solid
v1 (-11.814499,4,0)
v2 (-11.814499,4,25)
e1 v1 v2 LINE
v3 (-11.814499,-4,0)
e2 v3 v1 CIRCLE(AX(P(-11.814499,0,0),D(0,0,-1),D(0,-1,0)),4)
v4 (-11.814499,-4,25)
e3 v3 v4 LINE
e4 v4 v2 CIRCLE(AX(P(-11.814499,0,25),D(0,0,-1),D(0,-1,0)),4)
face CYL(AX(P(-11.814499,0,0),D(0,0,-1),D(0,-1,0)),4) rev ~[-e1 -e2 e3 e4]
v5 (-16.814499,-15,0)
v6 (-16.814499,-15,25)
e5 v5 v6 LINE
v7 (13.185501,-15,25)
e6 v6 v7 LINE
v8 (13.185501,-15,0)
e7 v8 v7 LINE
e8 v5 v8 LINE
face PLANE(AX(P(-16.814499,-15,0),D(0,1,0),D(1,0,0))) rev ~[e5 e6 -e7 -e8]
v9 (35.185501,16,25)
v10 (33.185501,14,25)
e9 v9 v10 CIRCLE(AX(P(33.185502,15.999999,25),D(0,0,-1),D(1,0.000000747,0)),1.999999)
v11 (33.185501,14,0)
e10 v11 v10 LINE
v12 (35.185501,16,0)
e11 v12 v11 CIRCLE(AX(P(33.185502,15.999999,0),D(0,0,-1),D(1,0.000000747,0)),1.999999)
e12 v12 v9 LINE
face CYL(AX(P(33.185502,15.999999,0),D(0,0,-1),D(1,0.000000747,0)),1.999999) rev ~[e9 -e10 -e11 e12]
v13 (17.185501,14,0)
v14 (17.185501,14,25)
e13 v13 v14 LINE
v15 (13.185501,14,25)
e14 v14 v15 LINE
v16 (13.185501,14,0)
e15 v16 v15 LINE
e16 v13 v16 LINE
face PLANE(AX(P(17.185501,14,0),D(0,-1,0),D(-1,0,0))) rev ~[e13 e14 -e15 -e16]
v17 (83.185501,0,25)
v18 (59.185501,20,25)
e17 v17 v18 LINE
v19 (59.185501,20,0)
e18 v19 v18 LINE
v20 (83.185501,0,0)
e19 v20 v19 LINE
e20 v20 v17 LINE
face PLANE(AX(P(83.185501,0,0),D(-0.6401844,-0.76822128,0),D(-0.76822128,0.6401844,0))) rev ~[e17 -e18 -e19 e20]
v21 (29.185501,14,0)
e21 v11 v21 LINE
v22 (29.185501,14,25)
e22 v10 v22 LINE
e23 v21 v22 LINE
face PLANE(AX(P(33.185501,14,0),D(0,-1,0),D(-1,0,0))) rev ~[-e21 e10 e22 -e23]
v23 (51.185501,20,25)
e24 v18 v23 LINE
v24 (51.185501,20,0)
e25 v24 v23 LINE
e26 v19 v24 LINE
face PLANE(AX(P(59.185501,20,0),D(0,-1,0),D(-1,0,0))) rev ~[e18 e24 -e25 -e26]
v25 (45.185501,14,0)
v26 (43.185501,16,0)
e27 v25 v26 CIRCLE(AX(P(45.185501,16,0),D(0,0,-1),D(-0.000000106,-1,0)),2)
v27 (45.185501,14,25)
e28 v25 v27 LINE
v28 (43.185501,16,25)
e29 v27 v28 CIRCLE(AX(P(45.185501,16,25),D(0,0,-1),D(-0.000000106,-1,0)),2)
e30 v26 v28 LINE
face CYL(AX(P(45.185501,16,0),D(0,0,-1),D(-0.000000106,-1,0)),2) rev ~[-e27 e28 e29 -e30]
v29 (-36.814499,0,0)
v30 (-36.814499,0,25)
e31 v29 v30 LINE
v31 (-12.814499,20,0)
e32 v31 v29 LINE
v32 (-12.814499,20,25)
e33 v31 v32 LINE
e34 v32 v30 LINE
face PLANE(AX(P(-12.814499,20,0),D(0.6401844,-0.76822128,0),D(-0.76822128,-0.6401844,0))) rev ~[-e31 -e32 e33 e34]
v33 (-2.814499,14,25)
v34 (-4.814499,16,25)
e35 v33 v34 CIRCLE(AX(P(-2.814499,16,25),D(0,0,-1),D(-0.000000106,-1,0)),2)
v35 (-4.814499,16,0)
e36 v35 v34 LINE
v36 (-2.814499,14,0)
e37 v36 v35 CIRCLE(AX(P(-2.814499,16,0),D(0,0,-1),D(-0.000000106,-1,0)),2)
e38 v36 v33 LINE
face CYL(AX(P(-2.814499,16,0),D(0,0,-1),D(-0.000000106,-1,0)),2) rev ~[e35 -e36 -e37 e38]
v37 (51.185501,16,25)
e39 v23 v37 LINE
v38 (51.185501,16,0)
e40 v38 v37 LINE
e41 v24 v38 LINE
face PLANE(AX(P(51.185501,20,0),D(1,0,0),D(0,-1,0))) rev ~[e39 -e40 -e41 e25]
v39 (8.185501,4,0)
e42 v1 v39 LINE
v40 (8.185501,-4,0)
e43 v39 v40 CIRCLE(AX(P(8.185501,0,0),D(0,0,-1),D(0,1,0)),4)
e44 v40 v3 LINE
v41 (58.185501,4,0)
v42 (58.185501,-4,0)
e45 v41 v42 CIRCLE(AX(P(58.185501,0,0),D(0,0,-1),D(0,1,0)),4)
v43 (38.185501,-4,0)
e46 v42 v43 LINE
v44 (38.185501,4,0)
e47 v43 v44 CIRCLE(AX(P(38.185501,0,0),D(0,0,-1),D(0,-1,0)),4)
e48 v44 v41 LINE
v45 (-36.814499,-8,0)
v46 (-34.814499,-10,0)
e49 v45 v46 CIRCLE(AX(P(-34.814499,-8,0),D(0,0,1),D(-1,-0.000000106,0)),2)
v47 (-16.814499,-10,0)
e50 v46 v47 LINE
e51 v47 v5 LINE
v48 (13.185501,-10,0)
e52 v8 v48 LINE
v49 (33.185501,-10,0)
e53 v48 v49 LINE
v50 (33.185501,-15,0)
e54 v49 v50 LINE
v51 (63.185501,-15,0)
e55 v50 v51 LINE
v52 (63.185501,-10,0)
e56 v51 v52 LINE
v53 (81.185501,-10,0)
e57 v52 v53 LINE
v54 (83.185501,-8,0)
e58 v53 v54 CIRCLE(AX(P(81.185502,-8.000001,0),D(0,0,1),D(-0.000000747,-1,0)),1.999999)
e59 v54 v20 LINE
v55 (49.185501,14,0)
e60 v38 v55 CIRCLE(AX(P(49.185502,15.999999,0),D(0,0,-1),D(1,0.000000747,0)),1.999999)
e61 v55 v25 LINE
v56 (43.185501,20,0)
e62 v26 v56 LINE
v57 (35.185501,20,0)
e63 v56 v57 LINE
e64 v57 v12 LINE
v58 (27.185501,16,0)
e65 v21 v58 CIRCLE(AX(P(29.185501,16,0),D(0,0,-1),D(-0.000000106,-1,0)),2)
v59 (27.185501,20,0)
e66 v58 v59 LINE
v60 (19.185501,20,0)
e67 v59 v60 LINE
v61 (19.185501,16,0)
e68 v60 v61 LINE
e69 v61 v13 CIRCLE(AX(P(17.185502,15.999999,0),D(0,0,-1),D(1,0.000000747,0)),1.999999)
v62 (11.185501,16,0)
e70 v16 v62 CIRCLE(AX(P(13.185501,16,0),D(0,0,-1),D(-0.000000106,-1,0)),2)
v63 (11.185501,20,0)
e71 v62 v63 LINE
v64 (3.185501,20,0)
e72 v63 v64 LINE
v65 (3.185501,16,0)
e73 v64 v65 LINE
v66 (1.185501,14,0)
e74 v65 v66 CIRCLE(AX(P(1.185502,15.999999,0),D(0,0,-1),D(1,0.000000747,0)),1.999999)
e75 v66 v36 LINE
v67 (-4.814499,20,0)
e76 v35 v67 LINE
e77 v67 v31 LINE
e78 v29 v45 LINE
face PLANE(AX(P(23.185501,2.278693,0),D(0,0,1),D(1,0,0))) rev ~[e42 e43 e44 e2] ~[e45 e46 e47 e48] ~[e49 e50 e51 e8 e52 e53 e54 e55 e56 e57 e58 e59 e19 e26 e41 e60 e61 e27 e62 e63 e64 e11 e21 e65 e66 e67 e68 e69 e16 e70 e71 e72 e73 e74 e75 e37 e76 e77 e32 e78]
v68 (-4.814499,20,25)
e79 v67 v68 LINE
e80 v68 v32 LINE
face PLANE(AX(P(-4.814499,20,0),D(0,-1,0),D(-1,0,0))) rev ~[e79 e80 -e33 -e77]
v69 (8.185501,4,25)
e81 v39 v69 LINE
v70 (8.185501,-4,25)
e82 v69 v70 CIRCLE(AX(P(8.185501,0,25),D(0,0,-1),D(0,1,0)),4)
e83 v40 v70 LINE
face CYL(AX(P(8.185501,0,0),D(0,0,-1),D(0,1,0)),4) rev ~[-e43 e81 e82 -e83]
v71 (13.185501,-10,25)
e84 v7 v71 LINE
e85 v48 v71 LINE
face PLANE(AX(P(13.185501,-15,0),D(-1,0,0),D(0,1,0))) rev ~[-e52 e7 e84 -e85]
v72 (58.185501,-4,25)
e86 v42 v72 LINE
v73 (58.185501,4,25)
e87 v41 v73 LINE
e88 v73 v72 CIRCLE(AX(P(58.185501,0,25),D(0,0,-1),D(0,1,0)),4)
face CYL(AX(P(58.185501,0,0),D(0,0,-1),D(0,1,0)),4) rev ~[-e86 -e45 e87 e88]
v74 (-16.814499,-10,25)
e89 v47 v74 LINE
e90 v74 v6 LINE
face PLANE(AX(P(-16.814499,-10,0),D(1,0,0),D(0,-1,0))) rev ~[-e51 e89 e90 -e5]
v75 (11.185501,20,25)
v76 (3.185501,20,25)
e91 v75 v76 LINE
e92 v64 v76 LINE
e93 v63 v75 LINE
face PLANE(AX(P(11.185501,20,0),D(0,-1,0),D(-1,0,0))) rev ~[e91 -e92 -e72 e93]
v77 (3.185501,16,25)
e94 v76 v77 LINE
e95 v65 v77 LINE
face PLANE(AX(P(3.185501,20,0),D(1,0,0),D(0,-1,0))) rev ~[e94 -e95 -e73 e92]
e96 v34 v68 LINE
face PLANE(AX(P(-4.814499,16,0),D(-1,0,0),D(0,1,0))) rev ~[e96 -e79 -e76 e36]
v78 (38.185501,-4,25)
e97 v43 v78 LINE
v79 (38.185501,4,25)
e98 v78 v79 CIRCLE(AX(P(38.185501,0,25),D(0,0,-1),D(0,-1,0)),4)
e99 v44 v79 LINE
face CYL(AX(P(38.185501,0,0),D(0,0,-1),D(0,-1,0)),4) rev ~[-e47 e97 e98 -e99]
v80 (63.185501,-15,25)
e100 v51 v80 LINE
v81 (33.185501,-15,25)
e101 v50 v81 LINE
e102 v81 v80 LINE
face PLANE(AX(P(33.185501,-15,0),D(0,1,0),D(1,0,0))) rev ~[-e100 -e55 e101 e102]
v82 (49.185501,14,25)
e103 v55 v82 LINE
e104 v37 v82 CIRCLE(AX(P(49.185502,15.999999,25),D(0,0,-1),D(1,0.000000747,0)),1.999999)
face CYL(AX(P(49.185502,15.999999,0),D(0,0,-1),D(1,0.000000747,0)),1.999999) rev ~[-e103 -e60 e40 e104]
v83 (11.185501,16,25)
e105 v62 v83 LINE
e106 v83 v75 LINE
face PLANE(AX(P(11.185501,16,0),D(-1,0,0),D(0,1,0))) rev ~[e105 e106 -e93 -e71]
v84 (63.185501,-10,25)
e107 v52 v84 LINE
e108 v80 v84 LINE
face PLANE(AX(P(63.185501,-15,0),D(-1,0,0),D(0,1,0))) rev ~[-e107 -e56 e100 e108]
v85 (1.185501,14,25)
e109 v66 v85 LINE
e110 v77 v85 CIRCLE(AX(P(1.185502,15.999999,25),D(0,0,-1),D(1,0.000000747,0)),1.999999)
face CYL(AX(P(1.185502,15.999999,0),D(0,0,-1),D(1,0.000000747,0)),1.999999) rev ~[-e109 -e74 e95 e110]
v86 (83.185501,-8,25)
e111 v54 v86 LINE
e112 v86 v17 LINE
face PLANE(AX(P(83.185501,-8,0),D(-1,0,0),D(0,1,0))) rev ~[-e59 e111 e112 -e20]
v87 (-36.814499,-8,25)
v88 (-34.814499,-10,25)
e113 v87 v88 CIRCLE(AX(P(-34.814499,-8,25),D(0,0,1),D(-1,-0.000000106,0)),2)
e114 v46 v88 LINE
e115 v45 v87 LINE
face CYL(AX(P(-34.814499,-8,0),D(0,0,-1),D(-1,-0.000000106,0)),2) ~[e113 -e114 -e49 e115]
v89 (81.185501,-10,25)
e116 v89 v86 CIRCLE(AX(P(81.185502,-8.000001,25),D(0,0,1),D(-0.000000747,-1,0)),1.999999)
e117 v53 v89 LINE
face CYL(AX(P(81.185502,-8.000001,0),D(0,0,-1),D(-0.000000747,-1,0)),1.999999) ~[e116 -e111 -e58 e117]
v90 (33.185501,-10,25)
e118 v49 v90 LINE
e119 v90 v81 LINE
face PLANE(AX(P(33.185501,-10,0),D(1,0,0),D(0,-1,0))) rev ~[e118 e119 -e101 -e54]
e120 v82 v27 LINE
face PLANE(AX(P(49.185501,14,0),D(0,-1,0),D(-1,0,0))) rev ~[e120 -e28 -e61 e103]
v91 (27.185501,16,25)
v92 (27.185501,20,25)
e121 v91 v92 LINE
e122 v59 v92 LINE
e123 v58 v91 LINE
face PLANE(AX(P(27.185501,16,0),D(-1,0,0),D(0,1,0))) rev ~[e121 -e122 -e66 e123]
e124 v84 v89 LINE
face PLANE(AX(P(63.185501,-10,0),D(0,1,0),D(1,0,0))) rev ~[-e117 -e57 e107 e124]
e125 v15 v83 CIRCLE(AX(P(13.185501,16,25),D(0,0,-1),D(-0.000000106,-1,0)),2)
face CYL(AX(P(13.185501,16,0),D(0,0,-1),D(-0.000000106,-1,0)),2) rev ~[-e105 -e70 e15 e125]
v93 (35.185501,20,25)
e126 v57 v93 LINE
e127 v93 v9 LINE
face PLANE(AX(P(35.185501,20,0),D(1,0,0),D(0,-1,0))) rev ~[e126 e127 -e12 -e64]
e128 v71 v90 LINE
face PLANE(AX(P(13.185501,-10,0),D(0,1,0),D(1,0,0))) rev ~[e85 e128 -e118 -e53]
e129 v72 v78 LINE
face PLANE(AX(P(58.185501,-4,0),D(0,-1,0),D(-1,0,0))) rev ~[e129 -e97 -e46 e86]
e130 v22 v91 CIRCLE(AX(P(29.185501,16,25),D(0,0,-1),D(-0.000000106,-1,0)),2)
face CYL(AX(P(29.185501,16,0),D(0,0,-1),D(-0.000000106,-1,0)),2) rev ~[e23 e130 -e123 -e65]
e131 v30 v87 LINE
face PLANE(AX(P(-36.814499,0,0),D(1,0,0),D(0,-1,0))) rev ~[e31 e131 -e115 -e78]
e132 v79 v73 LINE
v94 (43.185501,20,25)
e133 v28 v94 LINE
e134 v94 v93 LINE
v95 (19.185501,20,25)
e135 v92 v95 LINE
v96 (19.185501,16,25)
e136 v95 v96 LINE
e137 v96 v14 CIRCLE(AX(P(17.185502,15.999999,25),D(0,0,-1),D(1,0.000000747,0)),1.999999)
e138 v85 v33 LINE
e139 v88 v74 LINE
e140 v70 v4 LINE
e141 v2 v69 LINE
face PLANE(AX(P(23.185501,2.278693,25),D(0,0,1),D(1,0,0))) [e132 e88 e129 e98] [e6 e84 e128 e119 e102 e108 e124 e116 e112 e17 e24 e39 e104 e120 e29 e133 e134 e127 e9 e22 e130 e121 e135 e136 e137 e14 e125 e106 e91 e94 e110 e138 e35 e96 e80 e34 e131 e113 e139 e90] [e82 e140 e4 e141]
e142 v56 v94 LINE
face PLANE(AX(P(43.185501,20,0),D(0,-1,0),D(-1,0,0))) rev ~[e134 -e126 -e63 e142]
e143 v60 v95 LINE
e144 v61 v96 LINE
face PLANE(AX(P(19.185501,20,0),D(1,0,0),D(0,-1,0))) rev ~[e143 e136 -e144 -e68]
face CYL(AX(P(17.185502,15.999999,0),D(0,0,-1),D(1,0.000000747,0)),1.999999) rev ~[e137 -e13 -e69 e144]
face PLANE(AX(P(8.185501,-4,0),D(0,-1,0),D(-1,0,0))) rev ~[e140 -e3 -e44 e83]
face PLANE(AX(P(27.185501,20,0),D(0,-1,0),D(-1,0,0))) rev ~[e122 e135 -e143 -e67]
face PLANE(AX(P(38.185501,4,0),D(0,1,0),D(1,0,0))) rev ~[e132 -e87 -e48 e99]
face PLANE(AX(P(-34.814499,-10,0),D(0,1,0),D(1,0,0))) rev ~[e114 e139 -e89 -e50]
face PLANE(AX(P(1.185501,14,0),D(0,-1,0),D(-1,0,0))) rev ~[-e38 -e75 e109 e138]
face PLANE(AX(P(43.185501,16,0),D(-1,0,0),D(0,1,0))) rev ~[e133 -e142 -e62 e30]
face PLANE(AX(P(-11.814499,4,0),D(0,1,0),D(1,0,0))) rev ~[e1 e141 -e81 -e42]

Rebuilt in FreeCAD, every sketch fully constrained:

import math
import FreeCAD as App
import Part
import Sketcher
from FreeCAD import Vector

doc = App.newDocument("Part")
body = doc.addObject("PartDesign::Body", "Body")

# Sketch on XY plane
sketch1 = body.newObject("Sketcher::SketchObject", "Sketch")
sketch1.AttachmentSupport = (doc.getObject("XY_Plane"), [""])
sketch1.MapMode = "FlatFace"
sketch1.addGeometry([
    Part.ArcOfCircle(Part.Circle(Vector(-34.8, -8, 0), Vector(0, 0, 1), 2), math.radians(-180), math.radians(-90)),  # 0
    Part.LineSegment(Vector(-34.8, -10, 0), Vector(-16.8, -10, 0)),  # 1
    Part.LineSegment(Vector(-16.8, -10, 0), Vector(-16.8, -15, 0)),  # 2
    Part.LineSegment(Vector(-16.8, -15, 0), Vector(13.2, -15, 0)),  # 3
    Part.LineSegment(Vector(13.2, -15, 0), Vector(13.2, -10, 0)),  # 4
    Part.LineSegment(Vector(13.2, -10, 0), Vector(33.2, -10, 0)),  # 5
    Part.LineSegment(Vector(33.2, -10, 0), Vector(33.2, -15, 0)),  # 6
    Part.LineSegment(Vector(33.2, -15, 0), Vector(63.2, -15, 0)),  # 7
    Part.LineSegment(Vector(63.2, -15, 0), Vector(63.2, -10, 0)),  # 8
    Part.LineSegment(Vector(63.2, -10, 0), Vector(81.2, -10, 0)),  # 9
    Part.ArcOfCircle(Part.Circle(Vector(81.2, -8, 0), Vector(0, 0, 1), 2), math.radians(-90), math.radians(0)),  # 10
    Part.LineSegment(Vector(83.2, -8, 0), Vector(83.2, 0, 0)),  # 11
    Part.LineSegment(Vector(83.2, 0, 0), Vector(59.2, 20, 0)),  # 12
    Part.LineSegment(Vector(59.2, 20, 0), Vector(51.2, 20, 0)),  # 13
    Part.LineSegment(Vector(51.2, 20, 0), Vector(51.2, 16, 0)),  # 14
    Part.ArcOfCircle(Part.Circle(Vector(49.2, 16, 0), Vector(0, 0, 1), 2), math.radians(-90), math.radians(0)),  # 15
    Part.LineSegment(Vector(49.2, 14, 0), Vector(45.2, 14, 0)),  # 16
    Part.ArcOfCircle(Part.Circle(Vector(45.2, 16, 0), Vector(0, 0, 1), 2), math.radians(-180), math.radians(-90)),  # 17
    Part.LineSegment(Vector(43.2, 16, 0), Vector(43.2, 20, 0)),  # 18
    Part.LineSegment(Vector(43.2, 20, 0), Vector(35.2, 20, 0)),  # 19
    Part.LineSegment(Vector(35.2, 20, 0), Vector(35.2, 16, 0)),  # 20
    Part.ArcOfCircle(Part.Circle(Vector(33.2, 16, 0), Vector(0, 0, 1), 2), math.radians(-90), math.radians(0)),  # 21
    Part.LineSegment(Vector(33.2, 14, 0), Vector(29.2, 14, 0)),  # 22
    Part.ArcOfCircle(Part.Circle(Vector(29.2, 16, 0), Vector(0, 0, 1), 2), math.radians(-180), math.radians(-90)),  # 23
    Part.LineSegment(Vector(27.2, 16, 0), Vector(27.2, 20, 0)),  # 24
    Part.LineSegment(Vector(27.2, 20, 0), Vector(19.2, 20, 0)),  # 25
    Part.LineSegment(Vector(19.2, 20, 0), Vector(19.2, 16, 0)),  # 26
    Part.ArcOfCircle(Part.Circle(Vector(17.2, 16, 0), Vector(0, 0, 1), 2), math.radians(-90), math.radians(0)),  # 27
    Part.LineSegment(Vector(17.2, 14, 0), Vector(13.2, 14, 0)),  # 28
    Part.ArcOfCircle(Part.Circle(Vector(13.2, 16, 0), Vector(0, 0, 1), 2), math.radians(-180), math.radians(-90)),  # 29
    Part.LineSegment(Vector(11.2, 16, 0), Vector(11.2, 20, 0)),  # 30
    Part.LineSegment(Vector(11.2, 20, 0), Vector(3.2, 20, 0)),  # 31
    Part.LineSegment(Vector(3.2, 20, 0), Vector(3.2, 16, 0)),  # 32
    Part.ArcOfCircle(Part.Circle(Vector(1.2, 16, 0), Vector(0, 0, 1), 2), math.radians(-90), math.radians(0)),  # 33
    Part.LineSegment(Vector(1.2, 14, 0), Vector(-2.8, 14, 0)),  # 34
    Part.ArcOfCircle(Part.Circle(Vector(-2.8, 16, 0), Vector(0, 0, 1), 2), math.radians(-180), math.radians(-90)),  # 35
    Part.LineSegment(Vector(-4.8, 16, 0), Vector(-4.8, 20, 0)),  # 36
    Part.LineSegment(Vector(-4.8, 20, 0), Vector(-12.8, 20, 0)),  # 37
    Part.LineSegment(Vector(-12.8, 20, 0), Vector(-36.8, 0, 0)),  # 38
    Part.LineSegment(Vector(-36.8, 0, 0), Vector(-36.8, -8, 0)),  # 39
    Part.LineSegment(Vector(-11.8, 4, 0), Vector(8.2, 4, 0)),  # 40
    Part.ArcOfCircle(Part.Circle(Vector(8.2, 0, 0), Vector(0, 0, 1), 4), math.radians(-90), math.radians(90)),  # 41
    Part.LineSegment(Vector(8.2, -4, 0), Vector(-11.8, -4, 0)),  # 42
    Part.ArcOfCircle(Part.Circle(Vector(-11.8, 0, 0), Vector(0, 0, 1), 4), math.radians(90), math.radians(270)),  # 43
    Part.LineSegment(Vector(38.2, 4, 0), Vector(58.2, 4, 0)),  # 44
    Part.ArcOfCircle(Part.Circle(Vector(58.2, 0, 0), Vector(0, 0, 1), 4), math.radians(-90), math.radians(90)),  # 45
    Part.LineSegment(Vector(58.2, -4, 0), Vector(38.2, -4, 0)),  # 46
    Part.ArcOfCircle(Part.Circle(Vector(38.2, 0, 0), Vector(0, 0, 1), 4), math.radians(90), math.radians(270)),  # 47
], False)
sketch1.addConstraint([
    Sketcher.Constraint("Tangent", 0, 2, 1, 1),
    Sketcher.Constraint("Coincident", 1, 2, 2, 1),
    Sketcher.Constraint("Coincident", 2, 2, 3, 1),
    Sketcher.Constraint("Coincident", 3, 2, 4, 1),
    Sketcher.Constraint("Coincident", 4, 2, 5, 1),
    Sketcher.Constraint("Coincident", 5, 2, 6, 1),
    Sketcher.Constraint("Coincident", 6, 2, 7, 1),
    Sketcher.Constraint("Coincident", 7, 2, 8, 1),
    Sketcher.Constraint("Coincident", 8, 2, 9, 1),
    Sketcher.Constraint("Tangent", 9, 2, 10, 1),
    Sketcher.Constraint("Tangent", 10, 2, 11, 1),
    Sketcher.Constraint("Coincident", 11, 2, 12, 1),
    Sketcher.Constraint("Coincident", 12, 2, 13, 1),
    Sketcher.Constraint("Coincident", 13, 2, 14, 1),
    Sketcher.Constraint("Tangent", 14, 2, 15, 2),
    Sketcher.Constraint("Tangent", 15, 1, 16, 1),
    Sketcher.Constraint("Tangent", 16, 2, 17, 2),
    Sketcher.Constraint("Tangent", 17, 1, 18, 1),
    Sketcher.Constraint("Coincident", 18, 2, 19, 1),
    Sketcher.Constraint("Coincident", 19, 2, 20, 1),
    Sketcher.Constraint("Tangent", 20, 2, 21, 2),
    Sketcher.Constraint("Tangent", 21, 1, 22, 1),
    Sketcher.Constraint("Tangent", 22, 2, 23, 2),
    Sketcher.Constraint("Tangent", 23, 1, 24, 1),
    Sketcher.Constraint("Coincident", 24, 2, 25, 1),
    Sketcher.Constraint("Coincident", 25, 2, 26, 1),
    Sketcher.Constraint("Tangent", 26, 2, 27, 2),
    Sketcher.Constraint("Tangent", 27, 1, 28, 1),
    Sketcher.Constraint("Tangent", 28, 2, 29, 2),
    Sketcher.Constraint("Tangent", 29, 1, 30, 1),
    Sketcher.Constraint("Coincident", 30, 2, 31, 1),
    Sketcher.Constraint("Coincident", 31, 2, 32, 1),
    Sketcher.Constraint("Tangent", 32, 2, 33, 2),
    Sketcher.Constraint("Tangent", 33, 1, 34, 1),
    Sketcher.Constraint("Tangent", 34, 2, 35, 2),
    Sketcher.Constraint("Tangent", 35, 1, 36, 1),
    Sketcher.Constraint("Coincident", 36, 2, 37, 1),
    Sketcher.Constraint("Coincident", 37, 2, 38, 1),
    Sketcher.Constraint("Coincident", 38, 2, 39, 1),
    Sketcher.Constraint("Tangent", 39, 2, 0, 1),
    Sketcher.Constraint("Tangent", 40, 2, 41, 2),
    Sketcher.Constraint("Tangent", 41, 1, 42, 1),
    Sketcher.Constraint("Tangent", 42, 2, 43, 2),
    Sketcher.Constraint("Tangent", 43, 1, 40, 1),
    Sketcher.Constraint("Tangent", 44, 2, 45, 2),
    Sketcher.Constraint("Tangent", 45, 1, 46, 1),
    Sketcher.Constraint("Tangent", 46, 2, 47, 2),
    Sketcher.Constraint("Tangent", 47, 1, 44, 1),
    Sketcher.Constraint("Horizontal", 1),
    Sketcher.Constraint("Vertical", 2),
    Sketcher.Constraint("Horizontal", 3),
    Sketcher.Constraint("Vertical", 4),
    Sketcher.Constraint("Horizontal", 5),
    Sketcher.Constraint("Vertical", 6),
    Sketcher.Constraint("Horizontal", 7),
    Sketcher.Constraint("Vertical", 8),
    Sketcher.Constraint("Horizontal", 9),
    Sketcher.Constraint("Vertical", 11),
    Sketcher.Constraint("Horizontal", 13),
    Sketcher.Constraint("Vertical", 14),
    Sketcher.Constraint("Horizontal", 16),
    Sketcher.Constraint("Vertical", 18),
    Sketcher.Constraint("Horizontal", 19),
    Sketcher.Constraint("Vertical", 20),
    Sketcher.Constraint("Horizontal", 22),
    Sketcher.Constraint("Vertical", 24),
    Sketcher.Constraint("Horizontal", 25),
    Sketcher.Constraint("Vertical", 26),
    Sketcher.Constraint("Horizontal", 28),
    Sketcher.Constraint("Vertical", 30),
    Sketcher.Constraint("Horizontal", 31),
    Sketcher.Constraint("Vertical", 32),
    Sketcher.Constraint("Horizontal", 34),
    Sketcher.Constraint("Vertical", 36),
    Sketcher.Constraint("Horizontal", 37),
    Sketcher.Constraint("Vertical", 39),
    Sketcher.Constraint("Horizontal", 40),
    Sketcher.Constraint("Horizontal", 42),
    Sketcher.Constraint("Horizontal", 44),
    Sketcher.Constraint("Horizontal", 46),
    Sketcher.Constraint("Equal", 0, 10),
    Sketcher.Constraint("Equal", 10, 15),
    Sketcher.Constraint("Equal", 15, 17),
    Sketcher.Constraint("Equal", 17, 21),
    Sketcher.Constraint("Equal", 21, 23),
    Sketcher.Constraint("Equal", 23, 27),
    Sketcher.Constraint("Equal", 27, 29),
    Sketcher.Constraint("Equal", 29, 33),
    Sketcher.Constraint("Equal", 33, 35),
    Sketcher.Constraint("Equal", 43, 45),
    Sketcher.Constraint("PointOnObject", 41, 3, -1),
    Sketcher.Constraint("PointOnObject", 45, 3, -1),
    Sketcher.Constraint("PointOnObject", 11, 2, -1),
    Sketcher.Constraint("PointOnObject", 38, 2, -1),
    Sketcher.Constraint("Horizontal", 0, 3, 10, 3),
    Sketcher.Constraint("Horizontal", 17, 3, 21, 3),
    Sketcher.Constraint("Horizontal", 23, 3, 27, 3),
    Sketcher.Constraint("Horizontal", 29, 3, 33, 3),
    Sketcher.Constraint("Horizontal", 1, 2, 4, 2),
    Sketcher.Constraint("Horizontal", 3, 2, 6, 2),
    Sketcher.Constraint("Horizontal", 13, 2, 18, 2),
    Sketcher.Constraint("Horizontal", 19, 2, 24, 2),
    Sketcher.Constraint("Horizontal", 25, 2, 30, 2),
    Sketcher.Constraint("Horizontal", 31, 2, 36, 2),
    Sketcher.Constraint("Vertical", 29, 3, 3, 2),
    Sketcher.Constraint("Vertical", 21, 3, 5, 2),
    Sketcher.Constraint("Equal", 3, 7),
    Sketcher.Constraint("Equal", 1, 9),
    Sketcher.Constraint("Equal", 13, 19),
    Sketcher.Constraint("Equal", 16, 22),
    Sketcher.Constraint("Equal", 19, 25),
    Sketcher.Constraint("Equal", 22, 28),
    Sketcher.Constraint("Equal", 25, 31),
    Sketcher.Constraint("Equal", 28, 34),
    Sketcher.Constraint("Equal", 31, 37),
    Sketcher.Constraint("Equal", 5, 40),
    Sketcher.Constraint("Equal", 42, 44),
    Sketcher.Constraint("Equal", 37, 11),
    Sketcher.Constraint("Equal", 34, 14),
    Sketcher.Constraint("Radius", 0, 2.0),
    Sketcher.Constraint("Radius", 41, 4.0),
    Sketcher.Constraint("DistanceX", 1, 1, 1, 2, 18.0),
    Sketcher.Constraint("DistanceX", 3, 1, 3, 2, 30.0),
    Sketcher.Constraint("DistanceX", 5, 1, 5, 2, 20.0),
    Sketcher.Constraint("DistanceX", 13, 2, 13, 1, 8.0),
    Sketcher.Constraint("DistanceY", 2, 2, 2, 1, 5.0),
    Sketcher.Constraint("DistanceY", -1, 1, 15, 3, 15.999999),
    Sketcher.Constraint("DistanceX", 0, 3, -1, 1, 34.814499),
    Sketcher.Constraint("DistanceX", -1, 1, 41, 3, 8.185501),
    Sketcher.Constraint("DistanceX", -1, 1, 45, 3, 58.185501),
])
pad1 = body.newObject("PartDesign::Pad", "Pad")
pad1.Profile = sketch1
pad1.Length = 25

doc.recompute()
